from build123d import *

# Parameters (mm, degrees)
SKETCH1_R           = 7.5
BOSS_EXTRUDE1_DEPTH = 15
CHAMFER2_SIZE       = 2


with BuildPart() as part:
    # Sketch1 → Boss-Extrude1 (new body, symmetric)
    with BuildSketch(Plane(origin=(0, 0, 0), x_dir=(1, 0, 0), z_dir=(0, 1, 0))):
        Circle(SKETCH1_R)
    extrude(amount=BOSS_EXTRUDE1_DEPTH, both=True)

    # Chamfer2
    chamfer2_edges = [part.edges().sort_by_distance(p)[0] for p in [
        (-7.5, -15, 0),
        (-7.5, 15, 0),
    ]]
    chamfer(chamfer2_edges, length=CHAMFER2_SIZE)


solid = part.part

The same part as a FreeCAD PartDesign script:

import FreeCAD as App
import Part
import Sketcher

V = App.Vector
Q = App.Units.Quantity


def edges_at(feature, points):
    """Names of the edges that pass closest to the given points."""
    edges = feature.Shape.Edges
    near = lambda p: min(range(len(edges)), key=lambda i: edges[i].distToShape(Part.Vertex(*p))[0])
    return sorted({f"Edge{near(p) + 1}" for p in points})

doc = App.newDocument("Part")
params = doc.addObject("Spreadsheet::Sheet", "Params")
for row, (alias, value) in enumerate([
    ("sketch1_diameter", "15 mm"),
    ("pad1_length", "30 mm"),
    ("chamfer_size", "2 mm"),
], start=1):
    params.set(f"A{row}", alias)
    params.set(f"B{row}", "=" + value)
    params.setAlias(f"B{row}", alias)

body = doc.addObject("PartDesign::Body", "Body")

sketch1 = body.newObject("Sketcher::SketchObject", "Sketch")
sketch1.AttachmentSupport = (doc.getObject("XZ_Plane"), [""])
sketch1.MapMode = "FlatFace"
sketch1.addGeometry(Part.Circle(V(0, 0, 0), V(0, 0, 1), 8), False)
sketch1.addConstraint([
    Sketcher.Constraint("Coincident", 0, 3, -1, 1),
    Sketcher.Constraint("Diameter", 0, Q("15 mm")),
])
sketch1.setExpression("Constraints[1]", "Params.sketch1_diameter")
pad1 = body.newObject("PartDesign::Pad", "Pad")
pad1.Profile = sketch1
pad1.setExpression("Length", "Params.pad1_length")
pad1.Midplane = True
doc.recompute()

chamfer = body.newObject("PartDesign::Chamfer", "Chamfer")
chamfer.Base = (pad1, edges_at(pad1, [(-7.5, -15, 0), (-7.5, 15, 0)]))
chamfer.setExpression("Size", "Params.chamfer_size")

doc.recompute()
